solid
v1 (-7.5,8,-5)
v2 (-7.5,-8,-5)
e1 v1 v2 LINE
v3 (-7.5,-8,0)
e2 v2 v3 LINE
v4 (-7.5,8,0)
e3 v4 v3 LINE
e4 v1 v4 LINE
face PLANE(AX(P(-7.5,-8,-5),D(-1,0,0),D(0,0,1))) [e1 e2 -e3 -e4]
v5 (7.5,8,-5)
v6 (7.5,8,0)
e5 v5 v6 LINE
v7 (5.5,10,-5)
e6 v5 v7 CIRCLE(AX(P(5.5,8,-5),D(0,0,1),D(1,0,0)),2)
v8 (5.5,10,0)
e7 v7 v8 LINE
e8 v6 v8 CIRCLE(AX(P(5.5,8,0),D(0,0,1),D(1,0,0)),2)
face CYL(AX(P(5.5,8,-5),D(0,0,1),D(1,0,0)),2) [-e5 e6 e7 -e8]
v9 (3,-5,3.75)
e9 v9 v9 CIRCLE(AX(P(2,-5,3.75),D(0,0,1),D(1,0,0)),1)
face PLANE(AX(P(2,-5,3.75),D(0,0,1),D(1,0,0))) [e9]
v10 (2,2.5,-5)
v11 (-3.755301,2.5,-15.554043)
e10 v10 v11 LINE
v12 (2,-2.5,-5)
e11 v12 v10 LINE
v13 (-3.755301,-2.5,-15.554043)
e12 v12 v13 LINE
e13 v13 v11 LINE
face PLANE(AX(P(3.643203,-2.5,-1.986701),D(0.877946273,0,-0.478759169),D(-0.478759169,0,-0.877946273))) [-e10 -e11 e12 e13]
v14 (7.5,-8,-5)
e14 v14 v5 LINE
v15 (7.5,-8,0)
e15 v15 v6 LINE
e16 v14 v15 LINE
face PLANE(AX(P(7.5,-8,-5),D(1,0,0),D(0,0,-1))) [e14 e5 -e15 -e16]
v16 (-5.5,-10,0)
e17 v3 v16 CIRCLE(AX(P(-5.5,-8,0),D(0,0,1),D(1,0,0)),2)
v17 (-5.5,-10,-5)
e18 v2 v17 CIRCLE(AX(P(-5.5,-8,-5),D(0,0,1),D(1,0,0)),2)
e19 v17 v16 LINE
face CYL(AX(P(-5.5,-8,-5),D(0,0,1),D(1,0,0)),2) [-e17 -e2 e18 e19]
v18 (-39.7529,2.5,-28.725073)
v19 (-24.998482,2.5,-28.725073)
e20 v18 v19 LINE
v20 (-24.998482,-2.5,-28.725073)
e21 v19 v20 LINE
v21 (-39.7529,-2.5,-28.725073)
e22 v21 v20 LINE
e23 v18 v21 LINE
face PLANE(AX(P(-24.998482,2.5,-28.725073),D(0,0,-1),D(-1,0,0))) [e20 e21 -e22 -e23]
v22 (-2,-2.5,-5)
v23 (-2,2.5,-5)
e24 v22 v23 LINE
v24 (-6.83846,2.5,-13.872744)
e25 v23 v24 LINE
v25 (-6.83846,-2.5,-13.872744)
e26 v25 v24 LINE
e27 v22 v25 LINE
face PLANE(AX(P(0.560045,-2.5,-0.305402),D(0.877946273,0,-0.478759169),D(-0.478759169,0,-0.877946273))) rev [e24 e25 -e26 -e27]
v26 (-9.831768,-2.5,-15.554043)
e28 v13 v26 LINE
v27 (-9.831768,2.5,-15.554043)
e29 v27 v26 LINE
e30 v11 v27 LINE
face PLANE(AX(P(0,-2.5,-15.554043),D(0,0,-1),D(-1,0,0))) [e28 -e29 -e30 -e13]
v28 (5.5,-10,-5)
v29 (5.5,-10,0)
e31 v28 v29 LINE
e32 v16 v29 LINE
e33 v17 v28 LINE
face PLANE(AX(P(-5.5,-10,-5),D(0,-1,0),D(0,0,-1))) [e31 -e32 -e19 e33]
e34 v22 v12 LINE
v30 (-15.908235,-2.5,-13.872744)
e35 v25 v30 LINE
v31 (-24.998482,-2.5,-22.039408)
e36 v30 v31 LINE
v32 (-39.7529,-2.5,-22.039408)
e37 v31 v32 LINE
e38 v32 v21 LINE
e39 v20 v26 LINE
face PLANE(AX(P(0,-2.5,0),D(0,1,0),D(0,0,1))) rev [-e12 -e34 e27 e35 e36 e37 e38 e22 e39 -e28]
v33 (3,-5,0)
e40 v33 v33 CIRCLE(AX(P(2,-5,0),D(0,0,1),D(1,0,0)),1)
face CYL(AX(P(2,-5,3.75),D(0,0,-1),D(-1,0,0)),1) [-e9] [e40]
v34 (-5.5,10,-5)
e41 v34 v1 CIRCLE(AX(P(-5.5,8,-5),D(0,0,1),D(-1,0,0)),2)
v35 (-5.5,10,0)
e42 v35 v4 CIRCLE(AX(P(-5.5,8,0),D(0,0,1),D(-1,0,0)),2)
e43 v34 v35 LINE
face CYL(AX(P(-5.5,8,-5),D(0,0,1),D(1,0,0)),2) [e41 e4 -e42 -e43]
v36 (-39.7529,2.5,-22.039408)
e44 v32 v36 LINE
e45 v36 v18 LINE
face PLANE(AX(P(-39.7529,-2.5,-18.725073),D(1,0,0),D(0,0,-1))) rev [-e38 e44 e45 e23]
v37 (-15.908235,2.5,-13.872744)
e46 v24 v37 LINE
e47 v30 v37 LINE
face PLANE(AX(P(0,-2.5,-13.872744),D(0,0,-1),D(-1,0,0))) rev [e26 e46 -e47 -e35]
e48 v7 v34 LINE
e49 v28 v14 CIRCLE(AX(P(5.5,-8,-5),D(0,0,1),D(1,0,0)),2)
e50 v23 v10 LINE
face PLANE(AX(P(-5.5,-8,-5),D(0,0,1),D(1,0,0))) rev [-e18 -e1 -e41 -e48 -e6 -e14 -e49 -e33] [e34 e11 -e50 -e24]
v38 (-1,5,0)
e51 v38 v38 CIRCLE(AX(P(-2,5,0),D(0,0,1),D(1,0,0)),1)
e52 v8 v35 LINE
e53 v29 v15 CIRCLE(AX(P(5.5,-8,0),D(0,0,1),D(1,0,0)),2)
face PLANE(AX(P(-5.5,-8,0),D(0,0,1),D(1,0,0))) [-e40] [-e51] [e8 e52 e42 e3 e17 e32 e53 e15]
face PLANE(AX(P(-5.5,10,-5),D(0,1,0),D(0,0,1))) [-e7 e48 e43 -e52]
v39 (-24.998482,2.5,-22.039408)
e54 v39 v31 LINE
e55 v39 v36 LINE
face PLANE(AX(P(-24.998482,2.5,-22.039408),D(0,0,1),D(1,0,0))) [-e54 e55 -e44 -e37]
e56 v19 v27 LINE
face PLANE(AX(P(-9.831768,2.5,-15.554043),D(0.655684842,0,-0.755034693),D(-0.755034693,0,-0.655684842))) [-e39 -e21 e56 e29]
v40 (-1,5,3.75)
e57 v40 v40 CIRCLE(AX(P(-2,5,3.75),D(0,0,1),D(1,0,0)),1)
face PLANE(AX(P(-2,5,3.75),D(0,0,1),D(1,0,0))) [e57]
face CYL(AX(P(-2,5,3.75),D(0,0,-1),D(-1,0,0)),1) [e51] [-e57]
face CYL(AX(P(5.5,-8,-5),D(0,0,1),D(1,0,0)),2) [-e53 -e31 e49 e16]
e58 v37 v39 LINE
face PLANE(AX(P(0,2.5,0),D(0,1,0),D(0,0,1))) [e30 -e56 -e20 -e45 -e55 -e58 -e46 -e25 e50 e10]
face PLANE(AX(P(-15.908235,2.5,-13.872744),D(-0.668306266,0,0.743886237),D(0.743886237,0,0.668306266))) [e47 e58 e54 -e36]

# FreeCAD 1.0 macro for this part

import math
import FreeCAD as App
import Part
import Sketcher
Q = App.Units.Quantity


def add_polygon(sketch, points):
    """Adds a closed chain of lines whose ends are joined by coincident constraints."""
    first, n = sketch.GeometryCount, len(points)
    for a, b in zip(points, points[1:] + points[:1]):
        sketch.addGeometry(Part.LineSegment(App.Vector(*a, 0), App.Vector(*b, 0)), False)
    for i in range(n):
        sketch.addConstraint(Sketcher.Constraint("Coincident", first + i, 2, first + (i + 1) % n, 1))

doc = App.newDocument("Part")
params = doc.addObject("Spreadsheet::Sheet", "Params")
for row, (alias, value) in enumerate([
    ("sketch1_diameter", "2 mm"),
    ("pad1_length", "3.75 mm"),
    ("sketch2_diameter", "2 mm"),
    ("pad2_length", "3.75 mm"),
    ("sketch3_radius", "2 mm"),
    ("sketch3_width", "11 mm"),
    ("sketch3_height", "16 mm"),
    ("pad3_length", "5 mm"),
    ("sketch4_width", "4 mm"),
    ("pad4_length", "2.5 mm"),
    ("pad4_length2", "2.5 mm"),
    ("sketch5_width", "50 mm"),
    ("pad5_length", "5 mm"),
    ("pocket1_length", "10 mm"),
], start=1):
    params.set(f"A{row}", alias)
    params.set(f"B{row}", "=" + value)
    params.setAlias(f"B{row}", alias)

body = doc.addObject("PartDesign::Body", "Body")

sketch1 = body.newObject("Sketcher::SketchObject", "Sketch")
sketch1.AttachmentSupport = (doc.getObject("XY_Plane"), [""])
sketch1.MapMode = "FlatFace"
sketch1.addGeometry(Part.Circle(App.Vector(-2, 5, 0), App.Vector(0, 0, 1), 1), False)
sketch1.addConstraint([
    Sketcher.Constraint("Diameter", 0, Q("2 mm")),
    Sketcher.Constraint("DistanceX", 0, 3, -1, 1, Q("2 mm")),
    Sketcher.Constraint("DistanceY", -1, 1, 0, 3, Q("5 mm")),
])
sketch1.setExpression("Constraints[0]", "Params.sketch1_diameter")
pad1 = body.newObject("PartDesign::Pad", "Pad")
pad1.Profile = sketch1
pad1.setExpression("Length", "Params.pad1_length")
body2 = doc.addObject("PartDesign::Body", "Body001")

sketch2 = body2.newObject("Sketcher::SketchObject", "Sketch001")
sketch2.AttachmentSupport = (doc.getObject("XY_Plane001"), [""])
sketch2.MapMode = "FlatFace"
sketch2.addGeometry(Part.Circle(App.Vector(2, -5, 0), App.Vector(0, 0, 1), 1), False)
sketch2.addConstraint([
    Sketcher.Constraint("Diameter", 0, Q("2 mm")),
    Sketcher.Constraint("DistanceX", -1, 1, 0, 3, Q("2 mm")),
    Sketcher.Constraint("DistanceY", 0, 3, -1, 1, Q("5 mm")),
])
sketch2.setExpression("Constraints[0]", "Params.sketch2_diameter")
pad2 = body2.newObject("PartDesign::Pad", "Pad001")
pad2.Profile = sketch2
pad2.setExpression("Length", "Params.pad2_length")
body.AllowCompound = True
doc.recompute()

boolean = body.newObject("PartDesign::Boolean", "Boolean")
boolean.Type = "Fuse"
boolean.addObjects([body2])

sketch3 = body.newObject("Sketcher::SketchObject", "Sketch002")
sketch3.AttachmentSupport = (doc.getObject("XY_Plane"), [""])
sketch3.MapMode = "FlatFace"
sketch3.addGeometry([
    Part.LineSegment(App.Vector(-5.5, -10, 0), App.Vector(5.5, -10, 0)),
    Part.ArcOfCircle(Part.Circle(App.Vector(5.5, -8, 0), App.Vector(0, 0, 1), 2), math.radians(-90), math.radians(0)),
    Part.LineSegment(App.Vector(7.5, -8, 0), App.Vector(7.5, 8, 0)),
    Part.ArcOfCircle(Part.Circle(App.Vector(5.5, 8, 0), App.Vector(0, 0, 1), 2), math.radians(0), math.radians(90)),
    Part.LineSegment(App.Vector(5.5, 10, 0), App.Vector(-5.5, 10, 0)),
    Part.ArcOfCircle(Part.Circle(App.Vector(-5.5, 8, 0), App.Vector(0, 0, 1), 2), math.radians(90), math.radians(180)),
    Part.LineSegment(App.Vector(-7.5, 8, 0), App.Vector(-7.5, -8, 0)),
    Part.ArcOfCircle(Part.Circle(App.Vector(-5.5, -8, 0), App.Vector(0, 0, 1), 2), math.radians(-180), math.radians(-90)),
], False)
sketch3.addConstraint([
    Sketcher.Constraint("Tangent", 0, 2, 1, 1),
    Sketcher.Constraint("Tangent", 1, 2, 2, 1),
    Sketcher.Constraint("Tangent", 2, 2, 3, 1),
    Sketcher.Constraint("Tangent", 3, 2, 4, 1),
    Sketcher.Constraint("Tangent", 4, 2, 5, 1),
    Sketcher.Constraint("Tangent", 5, 2, 6, 1),
    Sketcher.Constraint("Tangent", 6, 2, 7, 1),
    Sketcher.Constraint("Tangent", 7, 2, 0, 1),
    Sketcher.Constraint("Horizontal", 0),
    Sketcher.Constraint("Vertical", 2),
    Sketcher.Constraint("Horizontal", 4),
    Sketcher.Constraint("Vertical", 6),
    Sketcher.Constraint("Equal", 1, 3),
    Sketcher.Constraint("Equal", 3, 5),
    Sketcher.Constraint("Equal", 5, 7),
    Sketcher.Constraint("Symmetric", 1, 3, 5, 3, -1, 1),
    Sketcher.Constraint("Radius", 1, Q("2 mm")),
    Sketcher.Constraint("DistanceX", 0, 1, 0, 2, Q("11 mm")),
    Sketcher.Constraint("DistanceY", 2, 1, 2, 2, Q("16 mm")),
])
sketch3.setExpression("Constraints[16]", "Params.sketch3_radius")
sketch3.setExpression("Constraints[17]", "Params.sketch3_width")
sketch3.setExpression("Constraints[18]", "Params.sketch3_height")
pad3 = body.newObject("PartDesign::Pad", "Pad002")
pad3.Profile = sketch3
pad3.setExpression("Length", "Params.pad3_length")
pad3.Reversed = True

sketch4 = body.newObject("Sketcher::SketchObject", "Sketch003")
sketch4.AttachmentSupport = (doc.getObject("XZ_Plane"), [""])
sketch4.MapMode = "FlatFace"
add_polygon(sketch4, [(-15.908235, -15.554043), (-15.908235, -13.872744), (-6.83846, -13.872744), (-2, -5), (2, -5), (-3.755301, -15.554043)])
sketch4.addConstraint([
    Sketcher.Constraint("Vertical", 0),
    Sketcher.Constraint("Horizontal", 1),
    Sketcher.Constraint("Horizontal", 3),
    Sketcher.Constraint("Horizontal", 5),
    Sketcher.Constraint("Parallel", 2, 4),
    Sketcher.Constraint("DistanceX", 3, 1, 3, 2, Q("4 mm")),
    Sketcher.Constraint("DistanceX", 2, 2, -1, 1, Q("2 mm")),
    Sketcher.Constraint("DistanceY", 2, 2, -1, 1, Q("5 mm")),
    Sketcher.Constraint("DistanceY", 0, 1, 0, 2, Q("1.681299 mm")),
    Sketcher.Constraint("DistanceX", 4, 2, -1, 1, Q("3.755301 mm")),
    Sketcher.Constraint("Distance", 2, Q("10.106249 mm")),
    Sketcher.Constraint("DistanceX", 1, 1, 1, 2, Q("9.069776 mm")),
])
sketch4.setExpression("Constraints[11]", "Params.sketch4_width")
pad4 = body.newObject("PartDesign::Pad", "Pad003")
pad4.Profile = sketch4
pad4.Type = "TwoLengths"
pad4.setExpression("Length", "Params.pad4_length")
pad4.setExpression("Length2", "Params.pad4_length2")
pad4.Reversed = True

sketch5 = body.newObject("Sketcher::SketchObject", "Sketch004")
sketch5.AttachmentSupport = (doc.getObject("XZ_Plane"), [""])
sketch5.MapMode = "FlatFace"
sketch5.AttachmentOffset = App.Placement(App.Vector(0, 0, -2.5), App.Rotation())
add_polygon(sketch5, [(-24.998482, -28.725073), (-9.831768, -15.554043), (-15.908235, -13.872744), (-24.998482, -22.039408), (-74.998482, -22.039408), (-74.998482, -28.725073)])
sketch5.addConstraint([
    Sketcher.Constraint("Horizontal", 3),
    Sketcher.Constraint("Vertical", 4),
    Sketcher.Constraint("Horizontal", 5),
    Sketcher.Constraint("Vertical", 2, 2, 5, 2),
    Sketcher.Constraint("DistanceX", 3, 2, 3, 1, Q("50 mm")),
    Sketcher.Constraint("DistanceY", 0, 2, 1, 2, Q("1.681299 mm")),
    Sketcher.Constraint("Distance", 0, Q("20.08744 mm")),
    Sketcher.Constraint("DistanceY", 4, 2, 4, 1, Q("6.685665 mm")),
    Sketcher.Constraint("DistanceX", 2, 2, -1, 1, Q("24.998482 mm")),
    Sketcher.Constraint("DistanceY", 4, 2, 1, 2, Q("14.852329 mm")),
    Sketcher.Constraint("Distance", 1, Q("6.304778 mm")),
    Sketcher.Constraint("DistanceY", 0, 2, -1, 1, Q("15.554043 mm")),
])
sketch5.setExpression("Constraints[10]", "Params.sketch5_width")
pad5 = body.newObject("PartDesign::Pad", "Pad004")
pad5.Profile = sketch5
pad5.setExpression("Length", "Params.pad5_length")

sketch6 = body.newObject("Sketcher::SketchObject", "Sketch005")
sketch6.AttachmentSupport = (doc.getObject("XY_Plane"), [""])
sketch6.MapMode = "FlatFace"
sketch6.AttachmentOffset = App.Placement(App.Vector(0, 0, -28.725073), App.Rotation())
add_polygon(sketch6, [(-39.7529, 2.5), (-39.7529, -8.60093), (-75.638905, -4.915953), (-75.638905, 6.190323), (-50.637755, 9.880646)])
sketch6.addConstraint([
    Sketcher.Constraint("Vertical", 0),
    Sketcher.Constraint("Vertical", 2),
    Sketcher.Constraint("DistanceY", -1, 1, 4, 2, Q("2.5 mm")),
    Sketcher.Constraint("DistanceY", 0, 2, 0, 1, Q("11.10093 mm")),
    Sketcher.Constraint("DistanceX", 0, 2, -1, 1, Q("39.7529 mm")),
    Sketcher.Constraint("DistanceY", 1, 2, 3, 2, Q("14.796599 mm")),
    Sketcher.Constraint("Distance", 3, Q("25.27204 mm")),
    Sketcher.Constraint("DistanceY", 2, 1, 2, 2, Q("11.106276 mm")),
    Sketcher.Constraint("Distance", 1, Q("36.074705 mm")),
    Sketcher.Constraint("Distance", 4, Q("13.151197 mm")),
])
pocket1 = body.newObject("PartDesign::Pocket", "Pocket")
pocket1.Profile = sketch6
pocket1.setExpression("Length", "Params.pocket1_length")
pocket1.Reversed = True

doc.recompute()
